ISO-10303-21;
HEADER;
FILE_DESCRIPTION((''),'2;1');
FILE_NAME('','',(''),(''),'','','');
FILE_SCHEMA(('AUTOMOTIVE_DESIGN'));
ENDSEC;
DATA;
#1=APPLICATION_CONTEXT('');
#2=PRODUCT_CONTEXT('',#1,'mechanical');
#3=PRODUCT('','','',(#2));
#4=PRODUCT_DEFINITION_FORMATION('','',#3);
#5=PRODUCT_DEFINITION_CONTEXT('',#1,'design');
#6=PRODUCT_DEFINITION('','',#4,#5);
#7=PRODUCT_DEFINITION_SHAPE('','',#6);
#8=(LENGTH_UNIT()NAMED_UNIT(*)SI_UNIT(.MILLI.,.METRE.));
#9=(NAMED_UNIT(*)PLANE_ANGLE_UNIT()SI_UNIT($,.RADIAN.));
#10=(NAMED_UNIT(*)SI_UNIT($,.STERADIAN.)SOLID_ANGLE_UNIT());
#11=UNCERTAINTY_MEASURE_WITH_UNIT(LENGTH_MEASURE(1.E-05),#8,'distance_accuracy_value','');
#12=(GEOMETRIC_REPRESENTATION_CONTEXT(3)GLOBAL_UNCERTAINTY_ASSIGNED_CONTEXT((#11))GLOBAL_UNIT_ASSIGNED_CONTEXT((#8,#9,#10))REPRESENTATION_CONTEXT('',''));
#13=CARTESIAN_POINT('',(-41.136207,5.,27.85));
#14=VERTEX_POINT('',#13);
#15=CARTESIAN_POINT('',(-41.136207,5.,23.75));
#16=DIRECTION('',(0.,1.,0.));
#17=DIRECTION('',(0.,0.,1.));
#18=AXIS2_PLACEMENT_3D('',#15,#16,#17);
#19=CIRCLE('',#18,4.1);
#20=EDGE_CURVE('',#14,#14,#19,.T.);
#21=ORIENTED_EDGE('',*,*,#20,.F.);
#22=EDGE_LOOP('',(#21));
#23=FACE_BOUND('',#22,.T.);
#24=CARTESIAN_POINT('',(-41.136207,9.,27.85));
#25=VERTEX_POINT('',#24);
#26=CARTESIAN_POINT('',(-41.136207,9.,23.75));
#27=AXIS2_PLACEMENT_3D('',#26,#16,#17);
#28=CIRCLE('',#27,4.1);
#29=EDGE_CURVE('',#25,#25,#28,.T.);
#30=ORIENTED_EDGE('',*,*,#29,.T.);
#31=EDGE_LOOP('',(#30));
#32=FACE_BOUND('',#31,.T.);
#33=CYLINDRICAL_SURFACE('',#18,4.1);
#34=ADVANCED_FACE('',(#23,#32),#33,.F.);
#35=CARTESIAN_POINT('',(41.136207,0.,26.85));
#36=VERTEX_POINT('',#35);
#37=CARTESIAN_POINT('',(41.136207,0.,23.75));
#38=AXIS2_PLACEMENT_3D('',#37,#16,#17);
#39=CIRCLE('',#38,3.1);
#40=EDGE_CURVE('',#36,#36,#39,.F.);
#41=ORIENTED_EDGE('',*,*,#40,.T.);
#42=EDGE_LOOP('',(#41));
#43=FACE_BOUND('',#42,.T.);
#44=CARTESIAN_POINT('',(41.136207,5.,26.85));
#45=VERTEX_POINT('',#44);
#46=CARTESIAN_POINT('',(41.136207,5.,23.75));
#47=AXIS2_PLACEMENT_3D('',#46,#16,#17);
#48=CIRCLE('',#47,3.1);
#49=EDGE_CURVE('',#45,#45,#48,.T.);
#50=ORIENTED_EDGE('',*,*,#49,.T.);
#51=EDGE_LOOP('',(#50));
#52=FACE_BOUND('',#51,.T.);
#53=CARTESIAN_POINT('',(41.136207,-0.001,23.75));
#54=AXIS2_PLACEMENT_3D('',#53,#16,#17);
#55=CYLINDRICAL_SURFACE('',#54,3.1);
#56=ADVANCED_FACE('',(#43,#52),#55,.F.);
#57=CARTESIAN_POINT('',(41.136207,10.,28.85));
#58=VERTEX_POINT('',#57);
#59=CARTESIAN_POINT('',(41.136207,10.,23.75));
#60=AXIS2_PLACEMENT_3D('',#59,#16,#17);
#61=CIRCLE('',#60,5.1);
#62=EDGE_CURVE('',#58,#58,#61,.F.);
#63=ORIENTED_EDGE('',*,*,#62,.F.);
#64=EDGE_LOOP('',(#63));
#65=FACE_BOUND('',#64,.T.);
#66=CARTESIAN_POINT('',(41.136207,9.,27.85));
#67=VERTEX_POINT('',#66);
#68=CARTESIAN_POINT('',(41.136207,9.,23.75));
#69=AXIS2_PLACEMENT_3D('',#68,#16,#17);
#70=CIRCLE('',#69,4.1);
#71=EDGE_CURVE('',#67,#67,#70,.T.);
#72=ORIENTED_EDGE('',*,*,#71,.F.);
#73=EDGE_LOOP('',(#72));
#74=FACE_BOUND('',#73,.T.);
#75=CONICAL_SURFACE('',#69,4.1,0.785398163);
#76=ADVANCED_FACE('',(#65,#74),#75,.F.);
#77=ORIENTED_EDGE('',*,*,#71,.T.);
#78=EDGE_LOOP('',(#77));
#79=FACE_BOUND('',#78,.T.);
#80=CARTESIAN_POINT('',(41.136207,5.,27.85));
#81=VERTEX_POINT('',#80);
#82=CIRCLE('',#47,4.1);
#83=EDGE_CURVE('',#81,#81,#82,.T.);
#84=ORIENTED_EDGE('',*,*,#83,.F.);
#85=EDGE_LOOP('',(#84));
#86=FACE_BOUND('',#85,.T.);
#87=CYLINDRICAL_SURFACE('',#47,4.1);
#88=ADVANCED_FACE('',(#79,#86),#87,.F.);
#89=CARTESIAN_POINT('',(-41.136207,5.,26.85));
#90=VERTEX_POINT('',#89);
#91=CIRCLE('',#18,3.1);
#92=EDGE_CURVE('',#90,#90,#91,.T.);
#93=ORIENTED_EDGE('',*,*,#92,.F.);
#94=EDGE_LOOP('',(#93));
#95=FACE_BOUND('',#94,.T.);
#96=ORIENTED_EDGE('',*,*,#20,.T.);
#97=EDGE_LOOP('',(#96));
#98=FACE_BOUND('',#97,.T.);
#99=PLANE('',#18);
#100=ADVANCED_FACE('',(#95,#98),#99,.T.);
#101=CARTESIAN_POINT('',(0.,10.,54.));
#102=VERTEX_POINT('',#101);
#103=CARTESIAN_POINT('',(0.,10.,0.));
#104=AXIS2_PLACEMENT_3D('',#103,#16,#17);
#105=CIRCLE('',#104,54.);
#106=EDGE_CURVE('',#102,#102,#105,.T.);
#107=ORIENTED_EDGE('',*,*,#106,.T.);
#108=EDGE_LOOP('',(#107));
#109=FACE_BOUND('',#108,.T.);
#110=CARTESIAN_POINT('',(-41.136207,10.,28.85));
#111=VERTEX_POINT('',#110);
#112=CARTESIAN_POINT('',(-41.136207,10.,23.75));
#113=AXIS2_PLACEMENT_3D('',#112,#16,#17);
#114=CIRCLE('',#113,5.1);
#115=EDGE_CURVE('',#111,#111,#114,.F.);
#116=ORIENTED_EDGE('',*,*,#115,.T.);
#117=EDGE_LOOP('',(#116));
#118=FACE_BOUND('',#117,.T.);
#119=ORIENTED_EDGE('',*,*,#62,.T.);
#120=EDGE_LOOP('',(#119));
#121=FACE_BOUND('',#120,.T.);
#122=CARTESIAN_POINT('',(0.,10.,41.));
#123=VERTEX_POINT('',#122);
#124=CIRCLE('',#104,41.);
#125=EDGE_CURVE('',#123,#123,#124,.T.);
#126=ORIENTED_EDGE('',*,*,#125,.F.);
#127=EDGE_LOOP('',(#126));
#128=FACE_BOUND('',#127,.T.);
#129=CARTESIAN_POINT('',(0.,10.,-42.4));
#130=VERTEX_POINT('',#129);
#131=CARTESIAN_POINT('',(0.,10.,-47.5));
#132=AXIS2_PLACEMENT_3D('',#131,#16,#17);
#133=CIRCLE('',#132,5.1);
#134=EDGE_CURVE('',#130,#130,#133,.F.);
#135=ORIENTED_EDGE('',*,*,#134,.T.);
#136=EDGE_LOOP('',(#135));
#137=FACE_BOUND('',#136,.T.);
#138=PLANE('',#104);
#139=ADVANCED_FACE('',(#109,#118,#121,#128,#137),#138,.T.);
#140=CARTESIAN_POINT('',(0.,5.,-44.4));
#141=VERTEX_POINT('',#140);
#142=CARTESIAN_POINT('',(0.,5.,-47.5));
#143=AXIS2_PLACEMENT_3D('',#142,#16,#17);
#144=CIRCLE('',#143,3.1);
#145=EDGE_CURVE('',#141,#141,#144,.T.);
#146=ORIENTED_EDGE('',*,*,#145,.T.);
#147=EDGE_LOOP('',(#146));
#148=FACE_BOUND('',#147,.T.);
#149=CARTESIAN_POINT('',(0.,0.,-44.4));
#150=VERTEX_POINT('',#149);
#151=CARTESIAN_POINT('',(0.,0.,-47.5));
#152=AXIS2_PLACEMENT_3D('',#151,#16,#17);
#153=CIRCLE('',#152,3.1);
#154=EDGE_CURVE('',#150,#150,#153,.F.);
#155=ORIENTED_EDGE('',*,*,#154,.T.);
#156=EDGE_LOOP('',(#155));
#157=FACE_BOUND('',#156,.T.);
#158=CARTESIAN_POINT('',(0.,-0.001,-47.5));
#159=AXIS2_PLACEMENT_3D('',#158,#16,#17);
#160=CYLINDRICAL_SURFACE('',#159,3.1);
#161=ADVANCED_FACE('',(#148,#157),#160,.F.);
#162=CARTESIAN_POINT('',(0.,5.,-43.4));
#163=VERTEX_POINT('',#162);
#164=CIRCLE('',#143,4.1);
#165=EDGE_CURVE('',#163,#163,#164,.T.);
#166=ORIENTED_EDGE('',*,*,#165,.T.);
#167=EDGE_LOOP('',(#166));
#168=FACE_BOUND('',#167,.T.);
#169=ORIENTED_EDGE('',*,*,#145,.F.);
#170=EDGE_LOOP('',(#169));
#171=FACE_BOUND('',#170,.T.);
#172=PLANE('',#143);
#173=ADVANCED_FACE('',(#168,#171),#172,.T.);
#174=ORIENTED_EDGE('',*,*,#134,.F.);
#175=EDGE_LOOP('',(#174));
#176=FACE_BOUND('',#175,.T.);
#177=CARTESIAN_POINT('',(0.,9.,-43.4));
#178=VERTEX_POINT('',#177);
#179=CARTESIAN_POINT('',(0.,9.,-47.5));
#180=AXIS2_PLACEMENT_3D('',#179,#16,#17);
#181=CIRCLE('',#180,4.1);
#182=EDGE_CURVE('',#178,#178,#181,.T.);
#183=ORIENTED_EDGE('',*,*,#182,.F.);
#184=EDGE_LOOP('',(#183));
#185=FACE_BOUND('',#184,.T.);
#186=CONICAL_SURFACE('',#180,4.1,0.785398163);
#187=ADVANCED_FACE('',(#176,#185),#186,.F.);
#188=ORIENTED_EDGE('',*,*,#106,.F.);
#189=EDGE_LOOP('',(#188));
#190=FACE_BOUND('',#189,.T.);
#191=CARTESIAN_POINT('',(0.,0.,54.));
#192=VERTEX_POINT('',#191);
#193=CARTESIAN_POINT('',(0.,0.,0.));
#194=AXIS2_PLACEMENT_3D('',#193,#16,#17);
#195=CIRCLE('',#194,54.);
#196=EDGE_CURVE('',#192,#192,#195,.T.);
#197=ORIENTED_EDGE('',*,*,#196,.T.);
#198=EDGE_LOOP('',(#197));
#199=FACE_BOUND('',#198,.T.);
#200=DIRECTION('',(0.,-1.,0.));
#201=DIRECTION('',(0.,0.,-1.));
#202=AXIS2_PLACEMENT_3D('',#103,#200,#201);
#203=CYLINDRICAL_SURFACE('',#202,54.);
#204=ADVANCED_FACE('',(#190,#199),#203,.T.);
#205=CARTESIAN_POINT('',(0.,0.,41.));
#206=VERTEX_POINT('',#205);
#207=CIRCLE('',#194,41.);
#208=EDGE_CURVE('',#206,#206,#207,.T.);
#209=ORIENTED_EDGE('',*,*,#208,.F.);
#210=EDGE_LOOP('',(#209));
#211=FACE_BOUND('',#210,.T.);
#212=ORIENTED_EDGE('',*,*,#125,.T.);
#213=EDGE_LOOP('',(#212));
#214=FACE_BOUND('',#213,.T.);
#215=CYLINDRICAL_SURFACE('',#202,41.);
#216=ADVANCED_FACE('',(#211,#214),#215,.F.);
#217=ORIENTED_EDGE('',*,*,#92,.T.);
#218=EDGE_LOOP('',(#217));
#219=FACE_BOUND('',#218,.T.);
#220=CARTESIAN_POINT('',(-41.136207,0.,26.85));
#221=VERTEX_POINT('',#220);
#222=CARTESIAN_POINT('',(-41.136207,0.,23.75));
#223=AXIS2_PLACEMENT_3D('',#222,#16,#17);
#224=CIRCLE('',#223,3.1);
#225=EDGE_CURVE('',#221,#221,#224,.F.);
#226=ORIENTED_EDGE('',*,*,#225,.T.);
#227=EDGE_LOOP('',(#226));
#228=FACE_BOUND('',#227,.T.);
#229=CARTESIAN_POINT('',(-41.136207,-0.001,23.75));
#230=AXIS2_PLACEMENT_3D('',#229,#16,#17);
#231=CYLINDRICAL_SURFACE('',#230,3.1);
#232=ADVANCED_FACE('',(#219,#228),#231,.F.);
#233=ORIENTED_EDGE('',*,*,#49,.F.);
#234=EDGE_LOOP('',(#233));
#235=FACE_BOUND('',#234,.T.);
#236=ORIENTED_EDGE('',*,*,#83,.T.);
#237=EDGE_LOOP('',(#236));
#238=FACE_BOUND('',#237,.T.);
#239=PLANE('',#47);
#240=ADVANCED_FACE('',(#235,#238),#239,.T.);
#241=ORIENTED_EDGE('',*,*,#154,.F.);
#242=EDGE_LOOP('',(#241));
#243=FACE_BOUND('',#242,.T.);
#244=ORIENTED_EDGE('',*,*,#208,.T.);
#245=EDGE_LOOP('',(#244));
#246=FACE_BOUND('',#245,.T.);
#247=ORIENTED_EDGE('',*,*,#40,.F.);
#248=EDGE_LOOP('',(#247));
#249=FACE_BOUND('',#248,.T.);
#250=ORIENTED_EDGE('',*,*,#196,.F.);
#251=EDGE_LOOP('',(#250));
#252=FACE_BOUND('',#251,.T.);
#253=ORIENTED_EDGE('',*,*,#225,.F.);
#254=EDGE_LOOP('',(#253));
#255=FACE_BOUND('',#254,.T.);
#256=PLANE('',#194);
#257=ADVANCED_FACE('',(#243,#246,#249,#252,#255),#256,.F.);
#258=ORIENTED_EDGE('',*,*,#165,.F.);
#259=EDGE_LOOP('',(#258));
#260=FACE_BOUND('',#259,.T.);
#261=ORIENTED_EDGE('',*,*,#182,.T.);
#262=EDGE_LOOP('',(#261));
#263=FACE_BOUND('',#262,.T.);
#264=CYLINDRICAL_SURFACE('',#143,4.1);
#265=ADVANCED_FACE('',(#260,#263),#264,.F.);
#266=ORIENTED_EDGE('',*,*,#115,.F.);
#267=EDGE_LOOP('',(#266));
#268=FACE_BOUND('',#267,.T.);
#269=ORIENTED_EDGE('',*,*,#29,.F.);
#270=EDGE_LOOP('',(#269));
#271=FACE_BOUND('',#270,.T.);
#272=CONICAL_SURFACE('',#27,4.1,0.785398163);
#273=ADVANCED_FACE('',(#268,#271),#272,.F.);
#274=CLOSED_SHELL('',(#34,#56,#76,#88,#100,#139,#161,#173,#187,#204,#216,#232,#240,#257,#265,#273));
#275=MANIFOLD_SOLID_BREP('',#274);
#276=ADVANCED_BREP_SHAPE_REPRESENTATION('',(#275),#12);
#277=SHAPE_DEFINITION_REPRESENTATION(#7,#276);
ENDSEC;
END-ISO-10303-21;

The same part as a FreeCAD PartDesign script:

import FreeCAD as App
import Part
import Sketcher


def edges_at(feature, points):
    """Names of the edges that pass closest to the given points."""
    edges = feature.Shape.Edges
    near = lambda p: min(range(len(edges)), key=lambda i: edges[i].distToShape(Part.Vertex(*p))[0])
    return sorted({f"Edge{near(p) + 1}" for p in points})

doc = App.newDocument("Part")
body = doc.addObject("PartDesign::Body", "Body")

# Sketch on XZ plane
sketch1 = doc.addObject("Sketcher::SketchObject", "Sketch")
body.addObject(sketch1)
sketch1.AttachmentSupport = (doc.XZ_Plane, [""])
sketch1.MapMode = "FlatFace"
sketch1.addGeometry([
    Part.Circle(App.Vector(0, 0, 0), App.Vector(0, 0, 1), 54),
    Part.Circle(App.Vector(0, 0, 0), App.Vector(0, 0, 1), 41),
], False)
sketch1.addConstraint([
    Sketcher.Constraint("Coincident", 0, 3, -1, 1),
    Sketcher.Constraint("Coincident", 1, 3, -1, 1),
    Sketcher.Constraint("Diameter", 0, 108.0),
    Sketcher.Constraint("Diameter", 1, 82.0),
])
pad1 = doc.addObject("PartDesign::Pad", "Pad")
body.addObject(pad1)
pad1.Profile = sketch1
pad1.Length = 10
pad1.Reversed = True

# Sketch on XZ plane
sketch2 = doc.addObject("Sketcher::SketchObject", "Sketch001")
body.addObject(sketch2)
sketch2.AttachmentSupport = (doc.XZ_Plane, [""])
sketch2.MapMode = "FlatFace"
sketch2.AttachmentOffset = App.Placement(App.Vector(0, 0, -10), App.Rotation())
sketch2.addGeometry([
    Part.Circle(App.Vector(0, -47.5, 0), App.Vector(0, 0, 1), 4.1),
    Part.Circle(App.Vector(41.1, 23.8, 0), App.Vector(0, 0, 1), 4.1),
    Part.Circle(App.Vector(-41.1, 23.8, 0), App.Vector(0, 0, 1), 4.1),
], False)
sketch2.addConstraint([
    Sketcher.Constraint("Equal", 0, 1),
    Sketcher.Constraint("Equal", 1, 2),
    Sketcher.Constraint("Symmetric", 1, 3, 2, 3, -2),
    Sketcher.Constraint("PointOnObject", 0, 3, -2),
    Sketcher.Constraint("Diameter", 0, 8.2),
    Sketcher.Constraint("DistanceY", 0, 3, -1, 1, 47.5),
    Sketcher.Constraint("DistanceY", -1, 1, 1, 3, 23.75),
    Sketcher.Constraint("DistanceX", -1, 1, 1, 3, 41.136207),
])
pocket1 = doc.addObject("PartDesign::Pocket", "Pocket")
body.addObject(pocket1)
pocket1.Profile = sketch2
pocket1.Length = 5
pocket1.Reversed = True

# Sketch on XZ plane
sketch3 = doc.addObject("Sketcher::SketchObject", "Sketch002")
body.addObject(sketch3)
sketch3.AttachmentSupport = (doc.XZ_Plane, [""])
sketch3.MapMode = "FlatFace"
sketch3.AttachmentOffset = App.Placement(App.Vector(0, 0, -5), App.Rotation())
sketch3.addGeometry(Part.Circle(App.Vector(0, -47.5, 0), App.Vector(0, 0, 1), 3.1), False)
sketch3.addConstraint([
    Sketcher.Constraint("PointOnObject", 0, 3, -2),
    Sketcher.Constraint("Diameter", 0, 6.2),
    Sketcher.Constraint("DistanceY", 0, 3, -1, 1, 47.5),
])
pocket2 = doc.addObject("PartDesign::Pocket", "Pocket001")
body.addObject(pocket2)
pocket2.Profile = sketch3
pocket2.Type = "UpToFirst"
pocket2.Reversed = True

# Sketch on XZ plane
sketch4 = doc.addObject("Sketcher::SketchObject", "Sketch003")
body.addObject(sketch4)
sketch4.AttachmentSupport = (doc.XZ_Plane, [""])
sketch4.MapMode = "FlatFace"
sketch4.AttachmentOffset = App.Placement(App.Vector(0, 0, -5), App.Rotation())
sketch4.addGeometry(Part.Circle(App.Vector(41.1, 23.8, 0), App.Vector(0, 0, 1), 3.1), False)
sketch4.addConstraint([
    Sketcher.Constraint("Diameter", 0, 6.2),
    Sketcher.Constraint("DistanceY", -1, 1, 0, 3, 23.75),
    Sketcher.Constraint("DistanceX", -1, 1, 0, 3, 41.136207),
])
pocket3 = doc.addObject("PartDesign::Pocket", "Pocket002")
body.addObject(pocket3)
pocket3.Profile = sketch4
pocket3.Type = "UpToFirst"
pocket3.Reversed = True

# Sketch on XZ plane
sketch5 = doc.addObject("Sketcher::SketchObject", "Sketch004")
body.addObject(sketch5)
sketch5.AttachmentSupport = (doc.XZ_Plane, [""])
sketch5.MapMode = "FlatFace"
sketch5.AttachmentOffset = App.Placement(App.Vector(0, 0, -5), App.Rotation())
sketch5.addGeometry(Part.Circle(App.Vector(-41.1, 23.8, 0), App.Vector(0, 0, 1), 3.1), False)
sketch5.addConstraint([
    Sketcher.Constraint("Diameter", 0, 6.2),
    Sketcher.Constraint("DistanceY", -1, 1, 0, 3, 23.75),
    Sketcher.Constraint("DistanceX", 0, 3, -1, 1, 41.136207),
])
pocket4 = doc.addObject("PartDesign::Pocket", "Pocket003")
body.addObject(pocket4)
pocket4.Profile = sketch5
pocket4.Type = "UpToFirst"
pocket4.Reversed = True
doc.recompute()

chamfer = doc.addObject("PartDesign::Chamfer", "Chamfer")
body.addObject(chamfer)
chamfer.Base = (pocket4, edges_at(pocket4, [(0, 10, -51.6), (41.136, 10, 19.65), (-41.136, 10, 19.65)]))
chamfer.Size = 1

doc.recompute()
